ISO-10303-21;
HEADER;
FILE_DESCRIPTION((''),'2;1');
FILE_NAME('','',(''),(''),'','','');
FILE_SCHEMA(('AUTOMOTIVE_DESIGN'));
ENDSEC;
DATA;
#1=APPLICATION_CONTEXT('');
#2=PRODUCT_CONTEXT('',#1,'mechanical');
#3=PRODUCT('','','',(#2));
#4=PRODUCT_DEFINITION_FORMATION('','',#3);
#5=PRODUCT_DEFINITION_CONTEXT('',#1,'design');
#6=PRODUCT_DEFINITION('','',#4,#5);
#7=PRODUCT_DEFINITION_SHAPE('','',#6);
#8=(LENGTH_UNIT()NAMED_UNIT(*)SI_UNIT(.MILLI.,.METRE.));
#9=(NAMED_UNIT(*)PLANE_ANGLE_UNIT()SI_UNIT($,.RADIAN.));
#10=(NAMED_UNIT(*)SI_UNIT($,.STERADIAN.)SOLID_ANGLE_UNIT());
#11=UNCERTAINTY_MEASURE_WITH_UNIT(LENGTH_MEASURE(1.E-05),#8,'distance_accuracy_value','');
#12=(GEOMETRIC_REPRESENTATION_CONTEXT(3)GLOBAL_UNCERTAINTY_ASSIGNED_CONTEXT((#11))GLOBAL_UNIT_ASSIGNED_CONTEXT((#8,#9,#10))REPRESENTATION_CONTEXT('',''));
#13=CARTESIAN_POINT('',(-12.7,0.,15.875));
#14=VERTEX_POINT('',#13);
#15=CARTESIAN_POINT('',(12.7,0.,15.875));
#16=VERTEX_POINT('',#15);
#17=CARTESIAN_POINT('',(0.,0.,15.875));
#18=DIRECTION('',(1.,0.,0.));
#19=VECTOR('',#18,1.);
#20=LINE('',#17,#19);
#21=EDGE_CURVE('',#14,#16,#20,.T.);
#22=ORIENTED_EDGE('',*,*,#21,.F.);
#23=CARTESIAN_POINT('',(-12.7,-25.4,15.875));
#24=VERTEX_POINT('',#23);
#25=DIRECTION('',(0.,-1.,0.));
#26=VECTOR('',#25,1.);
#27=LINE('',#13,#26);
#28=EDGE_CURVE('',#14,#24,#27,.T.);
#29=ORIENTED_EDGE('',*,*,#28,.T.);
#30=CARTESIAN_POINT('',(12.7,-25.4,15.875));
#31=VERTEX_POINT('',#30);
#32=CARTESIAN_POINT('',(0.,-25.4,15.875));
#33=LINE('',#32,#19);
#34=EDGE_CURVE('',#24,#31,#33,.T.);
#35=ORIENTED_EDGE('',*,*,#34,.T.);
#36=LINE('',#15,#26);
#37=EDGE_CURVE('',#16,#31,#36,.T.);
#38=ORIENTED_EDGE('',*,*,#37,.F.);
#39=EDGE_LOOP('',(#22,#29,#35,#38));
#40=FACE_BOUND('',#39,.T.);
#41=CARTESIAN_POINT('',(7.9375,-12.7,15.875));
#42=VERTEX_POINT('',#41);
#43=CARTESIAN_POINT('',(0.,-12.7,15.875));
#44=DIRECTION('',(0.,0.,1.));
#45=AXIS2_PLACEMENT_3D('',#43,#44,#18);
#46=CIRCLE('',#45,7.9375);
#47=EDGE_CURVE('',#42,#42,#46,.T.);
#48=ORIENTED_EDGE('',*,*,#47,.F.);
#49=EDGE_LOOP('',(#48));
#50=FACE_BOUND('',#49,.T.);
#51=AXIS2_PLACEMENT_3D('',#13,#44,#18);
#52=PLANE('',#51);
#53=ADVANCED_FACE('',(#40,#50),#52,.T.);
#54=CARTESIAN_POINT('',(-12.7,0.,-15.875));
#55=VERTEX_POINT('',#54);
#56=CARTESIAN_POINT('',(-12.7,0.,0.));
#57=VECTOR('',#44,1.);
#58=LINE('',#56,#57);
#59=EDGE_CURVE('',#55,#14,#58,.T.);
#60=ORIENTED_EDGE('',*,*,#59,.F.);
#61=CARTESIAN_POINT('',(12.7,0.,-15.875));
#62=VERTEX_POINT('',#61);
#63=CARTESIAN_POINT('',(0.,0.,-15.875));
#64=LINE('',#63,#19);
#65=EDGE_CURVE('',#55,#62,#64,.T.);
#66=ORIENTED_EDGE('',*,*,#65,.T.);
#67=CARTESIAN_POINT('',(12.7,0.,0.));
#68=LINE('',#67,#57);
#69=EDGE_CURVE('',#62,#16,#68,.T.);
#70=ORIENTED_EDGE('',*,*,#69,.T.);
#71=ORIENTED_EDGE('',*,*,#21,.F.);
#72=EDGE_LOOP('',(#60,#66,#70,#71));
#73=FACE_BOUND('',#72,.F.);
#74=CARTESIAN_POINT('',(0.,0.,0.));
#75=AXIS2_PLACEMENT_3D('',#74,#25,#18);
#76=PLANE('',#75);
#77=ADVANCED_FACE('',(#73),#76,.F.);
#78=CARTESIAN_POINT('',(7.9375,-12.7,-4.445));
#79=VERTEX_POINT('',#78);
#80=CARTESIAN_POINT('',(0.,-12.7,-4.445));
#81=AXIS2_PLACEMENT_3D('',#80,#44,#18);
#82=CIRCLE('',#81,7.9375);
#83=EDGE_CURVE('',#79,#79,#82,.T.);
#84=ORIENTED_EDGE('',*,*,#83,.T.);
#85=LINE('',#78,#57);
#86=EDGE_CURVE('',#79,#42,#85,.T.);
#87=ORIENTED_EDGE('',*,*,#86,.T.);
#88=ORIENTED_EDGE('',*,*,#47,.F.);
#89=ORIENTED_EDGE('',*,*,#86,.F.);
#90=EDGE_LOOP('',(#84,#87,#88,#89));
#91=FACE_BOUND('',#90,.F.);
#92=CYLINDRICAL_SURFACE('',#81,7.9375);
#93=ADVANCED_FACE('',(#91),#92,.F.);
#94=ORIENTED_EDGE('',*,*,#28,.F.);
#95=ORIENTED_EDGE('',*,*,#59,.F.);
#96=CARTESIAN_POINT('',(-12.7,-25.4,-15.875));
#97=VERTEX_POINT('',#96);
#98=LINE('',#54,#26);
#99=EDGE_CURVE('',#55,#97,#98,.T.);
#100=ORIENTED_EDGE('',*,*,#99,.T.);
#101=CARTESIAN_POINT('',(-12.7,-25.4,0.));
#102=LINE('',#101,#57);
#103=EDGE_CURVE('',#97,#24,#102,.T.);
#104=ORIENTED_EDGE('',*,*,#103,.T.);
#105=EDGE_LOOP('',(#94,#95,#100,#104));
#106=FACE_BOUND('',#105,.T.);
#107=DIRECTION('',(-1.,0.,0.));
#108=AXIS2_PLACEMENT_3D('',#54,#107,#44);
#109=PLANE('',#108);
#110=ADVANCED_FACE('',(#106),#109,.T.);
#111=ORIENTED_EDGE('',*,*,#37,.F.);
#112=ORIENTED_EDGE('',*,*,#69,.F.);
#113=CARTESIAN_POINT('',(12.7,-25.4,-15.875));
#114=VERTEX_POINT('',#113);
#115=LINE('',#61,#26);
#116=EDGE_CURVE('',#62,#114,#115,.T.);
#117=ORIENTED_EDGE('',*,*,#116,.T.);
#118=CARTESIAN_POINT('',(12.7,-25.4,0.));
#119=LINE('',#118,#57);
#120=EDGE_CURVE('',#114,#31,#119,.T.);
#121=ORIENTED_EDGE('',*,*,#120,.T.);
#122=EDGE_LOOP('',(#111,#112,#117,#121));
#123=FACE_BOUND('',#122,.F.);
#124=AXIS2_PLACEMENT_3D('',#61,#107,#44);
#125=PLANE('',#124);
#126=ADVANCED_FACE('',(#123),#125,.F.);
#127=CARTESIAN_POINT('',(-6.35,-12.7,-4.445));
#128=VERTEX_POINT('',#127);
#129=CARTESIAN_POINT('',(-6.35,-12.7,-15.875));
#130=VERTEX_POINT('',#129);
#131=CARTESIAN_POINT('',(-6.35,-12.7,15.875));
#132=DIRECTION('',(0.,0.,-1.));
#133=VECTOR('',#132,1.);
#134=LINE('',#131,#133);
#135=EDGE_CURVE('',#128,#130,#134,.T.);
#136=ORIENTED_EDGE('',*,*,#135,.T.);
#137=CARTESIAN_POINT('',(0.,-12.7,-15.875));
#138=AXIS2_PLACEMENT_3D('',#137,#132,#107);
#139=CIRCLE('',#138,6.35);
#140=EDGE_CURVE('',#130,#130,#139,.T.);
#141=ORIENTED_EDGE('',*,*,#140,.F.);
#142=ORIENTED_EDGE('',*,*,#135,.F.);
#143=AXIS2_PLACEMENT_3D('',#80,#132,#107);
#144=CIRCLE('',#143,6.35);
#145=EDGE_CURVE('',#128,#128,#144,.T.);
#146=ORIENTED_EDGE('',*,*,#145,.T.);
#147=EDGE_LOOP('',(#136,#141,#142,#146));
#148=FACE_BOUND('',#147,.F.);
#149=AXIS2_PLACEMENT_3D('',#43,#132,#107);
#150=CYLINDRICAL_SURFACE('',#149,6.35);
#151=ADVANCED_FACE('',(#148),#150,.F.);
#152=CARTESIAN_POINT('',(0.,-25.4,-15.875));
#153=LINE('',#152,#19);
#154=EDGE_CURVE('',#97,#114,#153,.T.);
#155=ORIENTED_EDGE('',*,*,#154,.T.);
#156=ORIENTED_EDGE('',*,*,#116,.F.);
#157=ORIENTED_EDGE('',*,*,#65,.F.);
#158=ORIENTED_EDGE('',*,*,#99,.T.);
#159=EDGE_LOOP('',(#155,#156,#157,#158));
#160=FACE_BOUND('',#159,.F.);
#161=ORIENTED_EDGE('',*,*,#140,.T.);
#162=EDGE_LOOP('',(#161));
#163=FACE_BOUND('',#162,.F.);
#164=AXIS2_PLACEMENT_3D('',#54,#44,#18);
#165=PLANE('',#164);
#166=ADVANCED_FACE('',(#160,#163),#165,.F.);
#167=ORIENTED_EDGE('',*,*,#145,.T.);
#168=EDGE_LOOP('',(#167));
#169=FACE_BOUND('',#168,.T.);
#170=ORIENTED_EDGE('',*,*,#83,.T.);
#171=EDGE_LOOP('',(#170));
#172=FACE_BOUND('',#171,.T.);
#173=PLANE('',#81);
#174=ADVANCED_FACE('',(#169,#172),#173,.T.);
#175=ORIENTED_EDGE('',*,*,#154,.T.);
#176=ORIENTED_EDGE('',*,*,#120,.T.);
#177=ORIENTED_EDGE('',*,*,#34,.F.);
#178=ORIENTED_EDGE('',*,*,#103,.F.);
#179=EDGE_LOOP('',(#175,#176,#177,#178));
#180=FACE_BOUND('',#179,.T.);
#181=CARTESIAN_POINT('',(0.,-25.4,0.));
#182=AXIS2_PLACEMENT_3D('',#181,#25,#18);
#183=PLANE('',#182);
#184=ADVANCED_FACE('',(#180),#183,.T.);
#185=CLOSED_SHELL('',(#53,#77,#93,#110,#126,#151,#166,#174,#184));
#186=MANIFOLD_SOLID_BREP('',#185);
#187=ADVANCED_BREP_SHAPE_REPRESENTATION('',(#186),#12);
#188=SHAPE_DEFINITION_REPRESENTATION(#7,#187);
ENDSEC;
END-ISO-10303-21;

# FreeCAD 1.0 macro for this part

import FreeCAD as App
import Part
import Sketcher
from FreeCAD import Vector
Q = App.Units.Quantity


def add_polygon(sketch, points):
    """Adds a closed chain of lines whose ends are joined by coincident constraints."""
    first, n = sketch.GeometryCount, len(points)
    for a, b in zip(points, points[1:] + points[:1]):
        sketch.addGeometry(Part.LineSegment(App.Vector(*a, 0), App.Vector(*b, 0)), False)
    for i in range(n):
        sketch.addConstraint(Sketcher.Constraint("Coincident", first + i, 2, first + (i + 1) % n, 1))

doc = App.newDocument("Part")
body = doc.addObject("PartDesign::Body", "Body")

sketch1 = body.newObject("Sketcher::SketchObject", "Sketch")
sketch1.AttachmentSupport = (doc.getObject("XZ_Plane"), [""])
sketch1.MapMode = "FlatFace"
add_polygon(sketch1, [(-13, 16), (-13, -16), (13, -16), (13, 16)])
sketch1.addConstraint([
    Sketcher.Constraint("Vertical", 0),
    Sketcher.Constraint("Horizontal", 1),
    Sketcher.Constraint("Vertical", 2),
    Sketcher.Constraint("Horizontal", 3),
    Sketcher.Constraint("Symmetric", 0, 2, 2, 2, -1, 1),
    Sketcher.Constraint("DistanceX", 1, 1, 1, 2, Q("1 in")),
    Sketcher.Constraint("DistanceY", 0, 2, 0, 1, Q("1.25 in")),
])
pad1 = body.newObject("PartDesign::Pad", "Pad")
pad1.Profile = sketch1
pad1.Length = Q("1 in")

sketch2 = body.newObject("Sketcher::SketchObject", "Sketch001")
sketch2.AttachmentSupport = (doc.getObject("XY_Plane"), [""])
sketch2.MapMode = "FlatFace"
sketch2.AttachmentOffset = App.Placement(Vector(0, 0, 0.625 * 25.4), App.Rotation())
sketch2.addGeometry(Part.Circle(Vector(0, -13, 0), Vector(0, 0, 1), 6), False)
sketch2.addConstraint([
    Sketcher.Constraint("PointOnObject", 0, 3, -2),
    Sketcher.Constraint("Diameter", 0, Q("0.5 in")),
    Sketcher.Constraint("DistanceY", 0, 3, -1, 1, Q("0.5 in")),
])
doc.recompute()
hole = body.newObject("PartDesign::Hole", "Hole")
hole.Profile = sketch2
hole.ThreadType = "None"
hole.Diameter = Q("0.5 in")
hole.DepthType = "ThroughAll"
hole.HoleCutType = "Counterbore"
hole.HoleCutDiameter = Q("0.625 in")
hole.HoleCutDepth = Q("0.8 in")

doc.recompute()
